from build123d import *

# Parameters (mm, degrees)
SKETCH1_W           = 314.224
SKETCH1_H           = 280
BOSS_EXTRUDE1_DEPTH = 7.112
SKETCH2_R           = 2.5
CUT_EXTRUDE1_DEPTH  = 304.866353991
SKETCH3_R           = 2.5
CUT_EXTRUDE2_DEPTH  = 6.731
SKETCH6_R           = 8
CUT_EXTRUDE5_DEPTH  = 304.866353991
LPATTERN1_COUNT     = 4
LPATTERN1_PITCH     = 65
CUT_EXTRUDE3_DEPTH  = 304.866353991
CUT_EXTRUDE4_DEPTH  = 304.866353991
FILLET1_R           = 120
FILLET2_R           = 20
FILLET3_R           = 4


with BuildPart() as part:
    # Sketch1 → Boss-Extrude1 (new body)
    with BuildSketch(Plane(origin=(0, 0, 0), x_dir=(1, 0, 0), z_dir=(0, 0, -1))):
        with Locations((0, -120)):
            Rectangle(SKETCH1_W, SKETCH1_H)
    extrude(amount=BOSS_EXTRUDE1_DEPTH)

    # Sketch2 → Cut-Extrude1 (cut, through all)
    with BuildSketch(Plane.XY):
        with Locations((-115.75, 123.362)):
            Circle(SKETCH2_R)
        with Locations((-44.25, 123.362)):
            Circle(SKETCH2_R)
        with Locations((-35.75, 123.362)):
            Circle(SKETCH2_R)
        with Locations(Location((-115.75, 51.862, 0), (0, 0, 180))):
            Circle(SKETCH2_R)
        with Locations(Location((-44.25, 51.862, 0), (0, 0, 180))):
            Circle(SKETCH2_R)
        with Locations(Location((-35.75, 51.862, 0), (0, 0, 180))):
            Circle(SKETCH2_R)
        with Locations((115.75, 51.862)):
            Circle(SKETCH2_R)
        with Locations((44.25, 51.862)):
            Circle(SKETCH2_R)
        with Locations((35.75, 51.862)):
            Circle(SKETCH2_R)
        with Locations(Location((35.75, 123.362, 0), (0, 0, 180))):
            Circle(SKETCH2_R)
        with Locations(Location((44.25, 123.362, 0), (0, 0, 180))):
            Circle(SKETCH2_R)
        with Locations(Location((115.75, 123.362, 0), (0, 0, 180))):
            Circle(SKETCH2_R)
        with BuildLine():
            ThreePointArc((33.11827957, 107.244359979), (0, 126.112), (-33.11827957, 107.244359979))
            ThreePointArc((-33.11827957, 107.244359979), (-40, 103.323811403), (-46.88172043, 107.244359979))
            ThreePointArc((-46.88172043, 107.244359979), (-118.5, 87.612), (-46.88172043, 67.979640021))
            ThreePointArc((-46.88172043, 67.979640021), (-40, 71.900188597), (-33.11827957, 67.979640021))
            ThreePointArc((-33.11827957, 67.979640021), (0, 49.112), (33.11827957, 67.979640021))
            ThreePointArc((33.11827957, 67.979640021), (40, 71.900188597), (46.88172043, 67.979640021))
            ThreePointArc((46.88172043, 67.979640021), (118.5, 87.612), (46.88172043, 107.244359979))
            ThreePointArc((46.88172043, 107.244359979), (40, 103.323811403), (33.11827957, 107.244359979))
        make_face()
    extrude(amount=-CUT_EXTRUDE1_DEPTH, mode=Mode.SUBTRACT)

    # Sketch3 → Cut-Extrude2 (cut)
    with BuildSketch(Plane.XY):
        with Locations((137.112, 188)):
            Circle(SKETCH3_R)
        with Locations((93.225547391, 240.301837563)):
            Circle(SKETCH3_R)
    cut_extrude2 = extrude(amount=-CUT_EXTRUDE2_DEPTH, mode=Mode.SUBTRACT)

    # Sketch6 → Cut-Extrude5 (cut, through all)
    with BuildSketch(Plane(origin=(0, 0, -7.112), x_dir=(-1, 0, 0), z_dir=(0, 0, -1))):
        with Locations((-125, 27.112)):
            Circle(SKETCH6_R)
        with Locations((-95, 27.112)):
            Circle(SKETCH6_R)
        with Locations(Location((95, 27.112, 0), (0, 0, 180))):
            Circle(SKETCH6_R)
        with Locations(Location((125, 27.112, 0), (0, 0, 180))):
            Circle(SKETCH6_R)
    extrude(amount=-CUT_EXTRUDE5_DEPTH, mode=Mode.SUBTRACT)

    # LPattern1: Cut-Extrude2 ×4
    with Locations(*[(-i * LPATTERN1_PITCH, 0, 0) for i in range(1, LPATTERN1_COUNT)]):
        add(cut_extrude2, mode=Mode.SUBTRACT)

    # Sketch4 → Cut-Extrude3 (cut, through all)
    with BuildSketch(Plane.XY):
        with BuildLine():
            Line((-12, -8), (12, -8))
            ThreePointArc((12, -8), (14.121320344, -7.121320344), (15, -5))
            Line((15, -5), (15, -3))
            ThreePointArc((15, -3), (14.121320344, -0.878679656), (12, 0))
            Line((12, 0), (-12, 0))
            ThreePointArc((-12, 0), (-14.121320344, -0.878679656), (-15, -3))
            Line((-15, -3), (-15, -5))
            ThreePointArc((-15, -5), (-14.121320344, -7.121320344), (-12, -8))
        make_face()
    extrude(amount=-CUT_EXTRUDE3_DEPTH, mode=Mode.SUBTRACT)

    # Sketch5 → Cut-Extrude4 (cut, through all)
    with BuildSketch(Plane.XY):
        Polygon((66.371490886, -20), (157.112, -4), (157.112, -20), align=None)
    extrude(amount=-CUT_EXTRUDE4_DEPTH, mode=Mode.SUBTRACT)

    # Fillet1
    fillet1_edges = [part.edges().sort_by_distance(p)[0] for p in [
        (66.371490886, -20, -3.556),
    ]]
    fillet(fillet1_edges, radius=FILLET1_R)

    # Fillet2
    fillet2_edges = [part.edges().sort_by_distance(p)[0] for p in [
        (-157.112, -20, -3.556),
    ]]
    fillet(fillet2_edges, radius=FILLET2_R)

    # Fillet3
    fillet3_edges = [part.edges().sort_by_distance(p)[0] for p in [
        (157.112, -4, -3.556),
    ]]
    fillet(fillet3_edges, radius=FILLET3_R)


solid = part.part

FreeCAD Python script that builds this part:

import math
import FreeCAD as App
import Part
import Sketcher
Q = App.Units.Quantity


def edges_at(feature, points):
    """Names of the edges that pass closest to the given points."""
    edges = feature.Shape.Edges
    near = lambda p: min(range(len(edges)), key=lambda i: edges[i].distToShape(Part.Vertex(*p))[0])
    return sorted({f"Edge{near(p) + 1}" for p in points})


def add_polygon(sketch, points):
    """Adds a closed chain of lines whose ends are joined by coincident constraints."""
    first, n = sketch.GeometryCount, len(points)
    for a, b in zip(points, points[1:] + points[:1]):
        sketch.addGeometry(Part.LineSegment(App.Vector(*a, 0), App.Vector(*b, 0)), False)
    for i in range(n):
        sketch.addConstraint(Sketcher.Constraint("Coincident", first + i, 2, first + (i + 1) % n, 1))

doc = App.newDocument("Part")
body = doc.addObject("PartDesign::Body", "Body")

# Sketch on XY plane
sketch1 = body.newObject("Sketcher::SketchObject", "Sketch")
sketch1.AttachmentSupport = (doc.getObject("XY_Plane"), [""])
sketch1.MapMode = "FlatFace"
add_polygon(sketch1, [(-157, -20), (-157, 260), (157, 260), (157, -20)])  # lines 0-3
sketch1.addConstraint([
    Sketcher.Constraint("Vertical", 0),
    Sketcher.Constraint("Horizontal", 1),
    Sketcher.Constraint("Vertical", 2),
    Sketcher.Constraint("Horizontal", 3),
    Sketcher.Constraint("DistanceY", 0, 1, 0, 2, 280.0),
    Sketcher.Constraint("DistanceY", -1, 1, 0, 2, 260.0),
    Sketcher.Constraint("DistanceX", 1, 1, 1, 2, 314.224),
    Sketcher.Constraint("DistanceX", 0, 2, -1, 1, 157.112),
])
pad1 = body.newObject("PartDesign::Pad", "Pad")
pad1.Profile = sketch1
pad1.Length = 7.112
pad1.Reversed = True

# Sketch on XY plane
sketch2 = body.newObject("Sketcher::SketchObject", "Sketch001")
sketch2.AttachmentSupport = (doc.getObject("XY_Plane"), [""])
sketch2.MapMode = "FlatFace"
sketch2.addGeometry([
    Part.Circle(App.Vector(-115.8, 123.4, 0), App.Vector(0, 0, 1), 2.5),  # 0
    Part.Circle(App.Vector(-44.2, 123.4, 0), App.Vector(0, 0, 1), 2.5),  # 1
    Part.Circle(App.Vector(-35.8, 123.4, 0), App.Vector(0, 0, 1), 2.5),  # 2
    Part.Circle(App.Vector(-115.8, 51.9, 0), App.Vector(0, 0, 1), 2.5),  # 3
    Part.Circle(App.Vector(-44.2, 51.9, 0), App.Vector(0, 0, 1), 2.5),  # 4
    Part.Circle(App.Vector(-35.8, 51.9, 0), App.Vector(0, 0, 1), 2.5),  # 5
    Part.Circle(App.Vector(115.8, 51.9, 0), App.Vector(0, 0, 1), 2.5),  # 6
    Part.Circle(App.Vector(44.2, 51.9, 0), App.Vector(0, 0, 1), 2.5),  # 7
    Part.Circle(App.Vector(35.8, 51.9, 0), App.Vector(0, 0, 1), 2.5),  # 8
    Part.Circle(App.Vector(35.8, 123.4, 0), App.Vector(0, 0, 1), 2.5),  # 9
    Part.Circle(App.Vector(44.2, 123.4, 0), App.Vector(0, 0, 1), 2.5),  # 10
    Part.Circle(App.Vector(115.8, 123.4, 0), App.Vector(0, 0, 1), 2.5),  # 11
    Part.ArcOfCircle(Part.Circle(App.Vector(0, 87.6, 0), App.Vector(0, 0, 1), 38.5), math.radians(31), math.radians(149)),  # 12
    Part.ArcOfCircle(Part.Circle(App.Vector(-40, 111.3, 0), App.Vector(0, 0, 1), 8), math.radians(-149), math.radians(-31)),  # 13
    Part.ArcOfCircle(Part.Circle(App.Vector(-80, 87.6, 0), App.Vector(0, 0, 1), 38.5), math.radians(31), math.radians(329)),  # 14
    Part.ArcOfCircle(Part.Circle(App.Vector(-40, 63.9, 0), App.Vector(0, 0, 1), 8), math.radians(31), math.radians(149)),  # 15
    Part.ArcOfCircle(Part.Circle(App.Vector(0, 87.6, 0), App.Vector(0, 0, 1), 38.5), math.radians(-149), math.radians(-31)),  # 16
    Part.ArcOfCircle(Part.Circle(App.Vector(40, 63.9, 0), App.Vector(0, 0, 1), 8), math.radians(31), math.radians(149)),  # 17
    Part.ArcOfCircle(Part.Circle(App.Vector(80, 87.6, 0), App.Vector(0, 0, 1), 38.5), math.radians(-149), math.radians(149)),  # 18
    Part.ArcOfCircle(Part.Circle(App.Vector(40, 111.3, 0), App.Vector(0, 0, 1), 8), math.radians(-149), math.radians(-31)),  # 19
], False)
sketch2.addConstraint([
    Sketcher.Constraint("Tangent", 12, 2, 13, 2),
    Sketcher.Constraint("Tangent", 13, 1, 14, 1),
    Sketcher.Constraint("Tangent", 14, 2, 15, 2),
    Sketcher.Constraint("Tangent", 15, 1, 16, 1),
    Sketcher.Constraint("Tangent", 16, 2, 17, 2),
    Sketcher.Constraint("Tangent", 17, 1, 18, 1),
    Sketcher.Constraint("Tangent", 18, 2, 19, 2),
    Sketcher.Constraint("Tangent", 19, 1, 12, 1),
    Sketcher.Constraint("Coincident", 16, 3, 12, 3),
    Sketcher.Constraint("Equal", 0, 1),
    Sketcher.Constraint("Equal", 1, 2),
    Sketcher.Constraint("Equal", 2, 3),
    Sketcher.Constraint("Equal", 3, 4),
    Sketcher.Constraint("Equal", 4, 5),
    Sketcher.Constraint("Equal", 5, 6),
    Sketcher.Constraint("Equal", 6, 7),
    Sketcher.Constraint("Equal", 7, 8),
    Sketcher.Constraint("Equal", 8, 9),
    Sketcher.Constraint("Equal", 9, 10),
    Sketcher.Constraint("Equal", 10, 11),
    Sketcher.Constraint("Equal", 12, 14),
    Sketcher.Constraint("Equal", 13, 15),
    Sketcher.Constraint("Equal", 14, 16),
    Sketcher.Constraint("Equal", 15, 17),
    Sketcher.Constraint("Equal", 16, 18),
    Sketcher.Constraint("Equal", 17, 19),
    Sketcher.Constraint("Symmetric", 3, 3, 6, 3, -2),
    Sketcher.Constraint("Symmetric", 4, 3, 7, 3, -2),
    Sketcher.Constraint("Symmetric", 5, 3, 8, 3, -2),
    Sketcher.Constraint("Symmetric", 2, 3, 9, 3, -2),
    Sketcher.Constraint("Symmetric", 1, 3, 10, 3, -2),
    Sketcher.Constraint("Symmetric", 0, 3, 11, 3, -2),
    Sketcher.Constraint("Symmetric", 15, 3, 17, 3, -2),
    Sketcher.Constraint("Horizontal", 0, 3, 1, 3),
    Sketcher.Constraint("Horizontal", 1, 3, 2, 3),
    Sketcher.Constraint("Horizontal", 3, 3, 4, 3),
    Sketcher.Constraint("Horizontal", 4, 3, 5, 3),
    Sketcher.Constraint("Horizontal", 12, 3, 14, 3),
    Sketcher.Constraint("Horizontal", 16, 3, 18, 3),
    Sketcher.Constraint("Vertical", 0, 3, 3, 3),
    Sketcher.Constraint("Vertical", 1, 3, 4, 3),
    Sketcher.Constraint("Vertical", 2, 3, 5, 3),
    Sketcher.Constraint("Diameter", 0, 5.0),
    Sketcher.Constraint("Radius", 13, 8.0),
    Sketcher.Constraint("Radius", 12, 38.5),
    Sketcher.Constraint("DistanceX", 13, 3, -1, 1, 40.0),
    Sketcher.Constraint("DistanceX", 0, 3, 2, 3, 80.0),
    Sketcher.Constraint("DistanceX", 4, 3, 6, 3, 160.0),
    Sketcher.Constraint("DistanceX", 0, 3, 1, 3, 71.5),
    Sketcher.Constraint("DistanceY", 3, 3, 0, 3, 71.5),
    Sketcher.Constraint("DistanceY", 5, 3, 12, 3, 35.75),
    Sketcher.Constraint("DistanceY", -1, 1, 0, 3, 123.362),
])
pocket1 = body.newObject("PartDesign::Pocket", "Pocket")
pocket1.Profile = sketch2
pocket1.Type = "ThroughAll"

# Sketch on XY plane
sketch3 = body.newObject("Sketcher::SketchObject", "Sketch002")
sketch3.AttachmentSupport = (doc.getObject("XY_Plane"), [""])
sketch3.MapMode = "FlatFace"
sketch3.addGeometry([
    Part.Circle(App.Vector(137.1, 188, 0), App.Vector(0, 0, 1), 2.5),
    Part.Circle(App.Vector(93.2, 240.3, 0), App.Vector(0, 0, 1), 2.5),
], False)
sketch3.addConstraint([
    Sketcher.Constraint("Equal", 0, 1),
    Sketcher.Constraint("Diameter", 0, 5.0),
    Sketcher.Constraint("DistanceY", -1, 1, 0, 3, 188.0),
    Sketcher.Constraint("DistanceX", -1, 1, 0, 3, 137.112),
    Sketcher.Constraint("DistanceX", -1, 1, 1, 3, 93.225547),
    Sketcher.Constraint("DistanceY", -1, 1, 1, 3, 240.301838),
])
pocket2 = body.newObject("PartDesign::Pocket", "Pocket001")
pocket2.Profile = sketch3
pocket2.Length = 6.731

# Sketch on XY plane
sketch4 = body.newObject("Sketcher::SketchObject", "Sketch003")
sketch4.AttachmentSupport = (doc.getObject("XY_Plane"), [""])
sketch4.MapMode = "FlatFace"
sketch4.AttachmentOffset = App.Placement(App.Vector(0, 0, -7.112), App.Rotation())
sketch4.addGeometry([
    Part.Circle(App.Vector(125, 27, 0), App.Vector(0, 0, 1), 8),
    Part.Circle(App.Vector(95, 27, 0), App.Vector(0, 0, 1), 8),
    Part.Circle(App.Vector(-95, 27, 0), App.Vector(0, 0, 1), 8),
    Part.Circle(App.Vector(-125, 27, 0), App.Vector(0, 0, 1), 8),
], False)
sketch4.addConstraint([
    Sketcher.Constraint("Equal", 0, 1),
    Sketcher.Constraint("Equal", 1, 2),
    Sketcher.Constraint("Equal", 2, 3),
    Sketcher.Constraint("Symmetric", 1, 3, 2, 3, -2),
    Sketcher.Constraint("Symmetric", 0, 3, 3, 3, -2),
    Sketcher.Constraint("Horizontal", 0, 3, 1, 3),
    Sketcher.Constraint("Diameter", 0, 16.0),
    Sketcher.Constraint("DistanceX", -1, 1, 0, 3, 125.0),
    Sketcher.Constraint("DistanceX", -1, 1, 1, 3, 95.0),
    Sketcher.Constraint("DistanceY", -1, 1, 0, 3, 27.112),
])
pocket3 = body.newObject("PartDesign::Pocket", "Pocket002")
pocket3.Profile = sketch4
pocket3.Type = "ThroughAll"
pocket3.Reversed = True
doc.recompute()

linearpattern = body.newObject("PartDesign::LinearPattern", "LinearPattern")
linearpattern.Originals = [pocket2]
linearpattern.Direction = (doc.getObject("X_Axis"), [""])
linearpattern.Mode = "offset"
linearpattern.Offset = 65
linearpattern.Occurrences = 4
linearpattern.Reversed = True
body.Tip = linearpattern

# Sketch on XY plane
sketch5 = body.newObject("Sketcher::SketchObject", "Sketch004")
sketch5.AttachmentSupport = (doc.getObject("XY_Plane"), [""])
sketch5.MapMode = "FlatFace"
sketch5.addGeometry([
    Part.LineSegment(App.Vector(-12, -8, 0), App.Vector(12, -8, 0)),  # 0
    Part.ArcOfCircle(Part.Circle(App.Vector(12, -5, 0), App.Vector(0, 0, 1), 3), math.radians(-90), math.radians(0)),  # 1
    Part.LineSegment(App.Vector(15, -5, 0), App.Vector(15, -3, 0)),  # 2
    Part.ArcOfCircle(Part.Circle(App.Vector(12, -3, 0), App.Vector(0, 0, 1), 3), math.radians(0), math.radians(90)),  # 3
    Part.LineSegment(App.Vector(12, 0, 0), App.Vector(-12, 0, 0)),  # 4
    Part.ArcOfCircle(Part.Circle(App.Vector(-12, -3, 0), App.Vector(0, 0, 1), 3), math.radians(90), math.radians(180)),  # 5
    Part.LineSegment(App.Vector(-15, -3, 0), App.Vector(-15, -5, 0)),  # 6
    Part.ArcOfCircle(Part.Circle(App.Vector(-12, -5, 0), App.Vector(0, 0, 1), 3), math.radians(180), math.radians(270)),  # 7
], False)
sketch5.addConstraint([
    Sketcher.Constraint("Tangent", 0, 2, 1, 1),
    Sketcher.Constraint("Tangent", 1, 2, 2, 1),
    Sketcher.Constraint("Tangent", 2, 2, 3, 1),
    Sketcher.Constraint("Tangent", 3, 2, 4, 1),
    Sketcher.Constraint("Tangent", 4, 2, 5, 1),
    Sketcher.Constraint("Tangent", 5, 2, 6, 1),
    Sketcher.Constraint("Tangent", 6, 2, 7, 1),
    Sketcher.Constraint("Tangent", 7, 2, 0, 1),
    Sketcher.Constraint("Horizontal", 0),
    Sketcher.Constraint("Vertical", 2),
    Sketcher.Constraint("Horizontal", 4),
    Sketcher.Constraint("Vertical", 6),
    Sketcher.Constraint("Equal", 1, 3),
    Sketcher.Constraint("Equal", 3, 5),
    Sketcher.Constraint("Equal", 5, 7),
    Sketcher.Constraint("Symmetric", 3, 2, 4, 2, -1, 1),
    Sketcher.Constraint("Radius", 1, 3.0),
    Sketcher.Constraint("DistanceX", 0, 1, 0, 2, 24.0),
    Sketcher.Constraint("DistanceY", 2, 1, 2, 2, 2.0),
])
pocket4 = body.newObject("PartDesign::Pocket", "Pocket003")
pocket4.Profile = sketch5
pocket4.Type = "ThroughAll"

# Sketch on XY plane
sketch6 = body.newObject("Sketcher::SketchObject", "Sketch005")
sketch6.AttachmentSupport = (doc.getObject("XY_Plane"), [""])
sketch6.MapMode = "FlatFace"
add_polygon(sketch6, [(157, -4), (66, -20), (157, -20)])  # lines 0-2
sketch6.addConstraint([
    Sketcher.Constraint("Horizontal", 1),
    Sketcher.Constraint("Vertical", 2),
    Sketcher.Constraint("DistanceY", 2, 1, 2, 2, 16.0),
    Sketcher.Constraint("Angle", 0, Q("-170 deg")),
    Sketcher.Constraint("DistanceY", 0, 2, -1, 1, 20.0),
    Sketcher.Constraint("DistanceX", -1, 1, 1, 2, 157.112),
])
pocket5 = body.newObject("PartDesign::Pocket", "Pocket004")
pocket5.Profile = sketch6
pocket5.Type = "ThroughAll"
doc.recompute()

fillet = body.newObject("PartDesign::Fillet", "Fillet")
fillet.Base = (pocket5, edges_at(pocket5, [(66.371, -20, -3.556)]))
fillet.Radius = 120
doc.recompute()

fillet2 = body.newObject("PartDesign::Fillet", "Fillet001")
fillet2.Base = (fillet, edges_at(fillet, [(-157.112, -20, -3.556)]))
fillet2.Radius = 20
doc.recompute()

fillet3 = body.newObject("PartDesign::Fillet", "Fillet002")
fillet3.Base = (fillet2, edges_at(fillet2, [(157.112, -4, -3.556)]))
fillet3.Radius = 4

doc.recompute()
